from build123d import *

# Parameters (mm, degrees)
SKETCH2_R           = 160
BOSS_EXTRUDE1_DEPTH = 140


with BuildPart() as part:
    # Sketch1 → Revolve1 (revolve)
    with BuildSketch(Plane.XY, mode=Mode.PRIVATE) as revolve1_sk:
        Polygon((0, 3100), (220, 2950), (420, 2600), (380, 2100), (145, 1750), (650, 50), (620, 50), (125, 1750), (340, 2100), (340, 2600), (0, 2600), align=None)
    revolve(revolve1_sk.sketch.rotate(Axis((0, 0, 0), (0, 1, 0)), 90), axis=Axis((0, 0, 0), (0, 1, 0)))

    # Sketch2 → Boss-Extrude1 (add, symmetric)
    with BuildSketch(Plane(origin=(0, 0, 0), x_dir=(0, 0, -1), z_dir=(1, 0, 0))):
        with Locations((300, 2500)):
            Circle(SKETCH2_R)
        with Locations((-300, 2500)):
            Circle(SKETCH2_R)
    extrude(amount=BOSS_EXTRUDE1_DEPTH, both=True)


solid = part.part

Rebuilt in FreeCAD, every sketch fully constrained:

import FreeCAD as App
import Part
import Sketcher

V = App.Vector

doc = App.newDocument("Part")
params = doc.addObject("Spreadsheet::Sheet", "Params")
for row, (alias, value) in enumerate([
    ("sketch1_width", "340 mm"),
    ("sketch1_width2", "30 mm"),
    ("sketch1_height", "500 mm"),
    ("revolution_angle", "360 deg"),
    ("sketch2_diameter", "320 mm"),
    ("pad1_length", "280 mm"),
], start=1):
    params.set(f"A{row}", alias)
    params.set(f"B{row}", "=" + value)
    params.setAlias(f"B{row}", alias)

body = doc.addObject("PartDesign::Body", "Body")

sketch1 = body.newObject("Sketcher::SketchObject", "Sketch")
sketch1.AttachmentSupport = (doc.getObject("XY_Plane"), [""])
sketch1.MapMode = "FlatFace"
sketch1.addGeometry(Part.LineSegment(V(220, 2950, 0), V(0, 3100, 0)), False)
sketch1.addGeometry(Part.LineSegment(V(0, 3100, 0), V(0, 2600, 0)), False)
sketch1.addGeometry(Part.LineSegment(V(0, 2600, 0), V(340, 2600, 0)), False)
sketch1.addGeometry(Part.LineSegment(V(340, 2600, 0), V(340, 2100, 0)), False)
sketch1.addGeometry(Part.LineSegment(V(340, 2100, 0), V(125, 1750, 0)), False)
sketch1.addGeometry(Part.LineSegment(V(125, 1750, 0), V(620, 50, 0)), False)
sketch1.addGeometry(Part.LineSegment(V(620, 50, 0), V(650, 50, 0)), False)
sketch1.addGeometry(Part.LineSegment(V(650, 50, 0), V(145, 1750, 0)), False)
sketch1.addGeometry(Part.LineSegment(V(145, 1750, 0), V(380, 2100, 0)), False)
sketch1.addGeometry(Part.LineSegment(V(380, 2100, 0), V(420, 2600, 0)), False)
sketch1.addGeometry(Part.LineSegment(V(420, 2600, 0), V(220, 2950, 0)), False)
sketch1.addConstraint(Sketcher.Constraint("Coincident", 0, 2, 1, 1))
sketch1.addConstraint(Sketcher.Constraint("Coincident", 1, 2, 2, 1))
sketch1.addConstraint(Sketcher.Constraint("Coincident", 2, 2, 3, 1))
sketch1.addConstraint(Sketcher.Constraint("Coincident", 3, 2, 4, 1))
sketch1.addConstraint(Sketcher.Constraint("Coincident", 4, 2, 5, 1))
sketch1.addConstraint(Sketcher.Constraint("Coincident", 5, 2, 6, 1))
sketch1.addConstraint(Sketcher.Constraint("Coincident", 6, 2, 7, 1))
sketch1.addConstraint(Sketcher.Constraint("Coincident", 7, 2, 8, 1))
sketch1.addConstraint(Sketcher.Constraint("Coincident", 8, 2, 9, 1))
sketch1.addConstraint(Sketcher.Constraint("Coincident", 9, 2, 10, 1))
sketch1.addConstraint(Sketcher.Constraint("Coincident", 10, 2, 0, 1))
sketch1.addConstraint(Sketcher.Constraint("Vertical", 1))
sketch1.addConstraint(Sketcher.Constraint("Horizontal", 2))
sketch1.addConstraint(Sketcher.Constraint("Vertical", 3))
sketch1.addConstraint(Sketcher.Constraint("Horizontal", 6))
sketch1.addConstraint(Sketcher.Constraint("PointOnObject", 0, 2, -2))
sketch1.addConstraint(Sketcher.Constraint("Horizontal", 4, 2, 7, 2))
sketch1.addConstraint(Sketcher.Constraint("Horizontal", 3, 2, 8, 2))
sketch1.addConstraint(Sketcher.Constraint("Horizontal", 2, 2, 9, 2))
sketch1.addConstraint(Sketcher.Constraint("Equal", 1, 3))
sketch1.addConstraint(Sketcher.Constraint("DistanceX", 2, 1, 2, 2, 340.0))
sketch1.addConstraint(Sketcher.Constraint("DistanceX", 6, 1, 6, 2, 30.0))
sketch1.addConstraint(Sketcher.Constraint("DistanceY", 1, 2, 1, 1, 500.0))
sketch1.addConstraint(Sketcher.Constraint("DistanceY", -1, 1, 0, 2, 3100.0))
sketch1.addConstraint(Sketcher.Constraint("DistanceX", -1, 1, 4, 2, 125.0))
sketch1.addConstraint(Sketcher.Constraint("DistanceY", -1, 1, 4, 2, 1750.0))
sketch1.addConstraint(Sketcher.Constraint("DistanceX", -1, 1, 5, 2, 620.0))
sketch1.addConstraint(Sketcher.Constraint("DistanceY", -1, 1, 5, 2, 50.0))
sketch1.addConstraint(Sketcher.Constraint("DistanceX", -1, 1, 7, 2, 145.0))
sketch1.addConstraint(Sketcher.Constraint("DistanceX", -1, 1, 8, 2, 380.0))
sketch1.addConstraint(Sketcher.Constraint("DistanceX", -1, 1, 9, 2, 420.0))
sketch1.addConstraint(Sketcher.Constraint("DistanceX", -1, 1, 10, 2, 220.0))
sketch1.addConstraint(Sketcher.Constraint("DistanceY", -1, 1, 10, 2, 2950.0))
sketch1.setExpression("Constraints[20]", "Params.sketch1_width")
sketch1.setExpression("Constraints[21]", "Params.sketch1_width2")
sketch1.setExpression("Constraints[22]", "Params.sketch1_height")
revolution = body.newObject("PartDesign::Revolution", "Revolution")
revolution.Profile = sketch1
revolution.ReferenceAxis = (sketch1, ["V_Axis"])
revolution.setExpression("Angle", "Params.revolution_angle")

sketch2 = body.newObject("Sketcher::SketchObject", "Sketch001")
sketch2.AttachmentSupport = (doc.getObject("YZ_Plane"), [""])
sketch2.MapMode = "FlatFace"
sketch2.addGeometry(Part.Circle(V(2500, -300, 0), V(0, 0, 1), 160), False)
sketch2.addGeometry(Part.Circle(V(2500, 300, 0), V(0, 0, 1), 160), False)
sketch2.addConstraint(Sketcher.Constraint("Equal", 0, 1))
sketch2.addConstraint(Sketcher.Constraint("Symmetric", 0, 3, 1, 3, -1))
sketch2.addConstraint(Sketcher.Constraint("Diameter", 0, 320.0))
sketch2.addConstraint(Sketcher.Constraint("DistanceX", -1, 1, 0, 3, 2500.0))
sketch2.addConstraint(Sketcher.Constraint("DistanceY", 0, 3, -1, 1, 300.0))
sketch2.setExpression("Constraints[2]", "Params.sketch2_diameter")
pad1 = body.newObject("PartDesign::Pad", "Pad")
pad1.Profile = sketch2
pad1.setExpression("Length", "Params.pad1_length")
pad1.Midplane = True

doc.recompute()
